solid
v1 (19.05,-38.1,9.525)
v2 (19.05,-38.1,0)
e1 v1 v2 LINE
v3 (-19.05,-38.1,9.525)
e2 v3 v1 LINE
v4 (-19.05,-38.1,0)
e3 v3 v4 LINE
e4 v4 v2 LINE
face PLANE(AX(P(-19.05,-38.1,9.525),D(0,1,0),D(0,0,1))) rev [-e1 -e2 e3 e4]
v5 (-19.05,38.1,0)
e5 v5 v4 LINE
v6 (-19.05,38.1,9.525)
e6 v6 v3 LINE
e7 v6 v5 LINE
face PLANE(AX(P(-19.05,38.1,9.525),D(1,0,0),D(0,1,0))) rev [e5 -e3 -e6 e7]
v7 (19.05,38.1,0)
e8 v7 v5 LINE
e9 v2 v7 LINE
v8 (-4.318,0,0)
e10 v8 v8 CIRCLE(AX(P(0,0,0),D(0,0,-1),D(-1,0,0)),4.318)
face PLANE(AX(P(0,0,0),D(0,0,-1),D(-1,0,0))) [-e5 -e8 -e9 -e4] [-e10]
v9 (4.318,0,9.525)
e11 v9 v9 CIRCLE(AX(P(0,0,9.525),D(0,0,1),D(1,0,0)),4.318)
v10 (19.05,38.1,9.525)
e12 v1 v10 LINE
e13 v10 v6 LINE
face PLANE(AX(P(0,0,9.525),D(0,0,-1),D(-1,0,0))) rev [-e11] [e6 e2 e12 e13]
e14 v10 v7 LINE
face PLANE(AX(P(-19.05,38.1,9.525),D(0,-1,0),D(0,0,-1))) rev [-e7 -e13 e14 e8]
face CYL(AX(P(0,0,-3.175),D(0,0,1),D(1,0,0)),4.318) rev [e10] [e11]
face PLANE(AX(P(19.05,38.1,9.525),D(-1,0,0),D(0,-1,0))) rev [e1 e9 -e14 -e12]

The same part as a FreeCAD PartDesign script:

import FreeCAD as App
import Part
import Sketcher
from FreeCAD import Vector
Q = App.Units.Quantity

doc = App.newDocument("Part")
body = doc.addObject("PartDesign::Body", "Body")

sketch1 = doc.addObject("Sketcher::SketchObject", "Sketch")
body.addObject(sketch1)
sketch1.AttachmentSupport = (doc.XY_Plane, [""])
sketch1.MapMode = "FlatFace"
sketch1.addGeometry([
    Part.LineSegment(Vector(-19.05, 38.1, 0), Vector(-19.05, -38.1, 0)),
    Part.LineSegment(Vector(-19.05, -38.1, 0), Vector(19.05, -38.1, 0)),
    Part.LineSegment(Vector(19.05, -38.1, 0), Vector(19.05, 38.1, 0)),
    Part.LineSegment(Vector(19.05, 38.1, 0), Vector(-19.05, 38.1, 0)),
], False)
sketch1.addConstraint([
    Sketcher.Constraint("Coincident", 0, 2, 1, 1),
    Sketcher.Constraint("Coincident", 1, 2, 2, 1),
    Sketcher.Constraint("Coincident", 2, 2, 3, 1),
    Sketcher.Constraint("Coincident", 3, 2, 0, 1),
    Sketcher.Constraint("Vertical", 0),
    Sketcher.Constraint("Horizontal", 1),
    Sketcher.Constraint("Vertical", 2),
    Sketcher.Constraint("Horizontal", 3),
    Sketcher.Constraint("Symmetric", 0, 2, 2, 2, -1, 1),
    Sketcher.Constraint("DistanceY", 0, 2, 0, 1, Q("3 in")),
    Sketcher.Constraint("DistanceX", 1, 1, 1, 2, Q("1.5 in")),
])
pad1 = doc.addObject("PartDesign::Pad", "Pad")
body.addObject(pad1)
pad1.Profile = sketch1
pad1.Length = Q("0.375 in")

sketch2 = doc.addObject("Sketcher::SketchObject", "Sketch001")
body.addObject(sketch2)
sketch2.AttachmentSupport = (doc.XY_Plane, [""])
sketch2.MapMode = "FlatFace"
sketch2.AttachmentOffset = App.Placement(Vector(0, 0, 0.375 * 25.4), App.Rotation())
sketch2.addGeometry([
    Part.LineSegment(Vector(-28.623, 47.673, 0), Vector(-28.623, -47.673, 0)),
    Part.LineSegment(Vector(-28.623, -47.673, 0), Vector(28.623, -47.673, 0)),
    Part.LineSegment(Vector(28.623, -47.673, 0), Vector(28.623, 47.673, 0)),
    Part.LineSegment(Vector(28.623, 47.673, 0), Vector(-28.623, 47.673, 0)),
    Part.LineSegment(Vector(19.05, -38.1, 0), Vector(-19.05, -38.1, 0)),
    Part.LineSegment(Vector(-19.05, -38.1, 0), Vector(-19.05, 38.1, 0)),
    Part.LineSegment(Vector(-19.05, 38.1, 0), Vector(19.05, 38.1, 0)),
    Part.LineSegment(Vector(19.05, 38.1, 0), Vector(19.05, -38.1, 0)),
    Part.Circle(Vector(0, 0, 0), Vector(0, 0, 1), 4.318),
], False)
sketch2.addConstraint([
    Sketcher.Constraint("Coincident", 0, 2, 1, 1),
    Sketcher.Constraint("Coincident", 1, 2, 2, 1),
    Sketcher.Constraint("Coincident", 2, 2, 3, 1),
    Sketcher.Constraint("Coincident", 3, 2, 0, 1),
    Sketcher.Constraint("Coincident", 4, 2, 5, 1),
    Sketcher.Constraint("Coincident", 5, 2, 6, 1),
    Sketcher.Constraint("Coincident", 6, 2, 7, 1),
    Sketcher.Constraint("Coincident", 7, 2, 4, 1),
    Sketcher.Constraint("Vertical", 0),
    Sketcher.Constraint("Horizontal", 1),
    Sketcher.Constraint("Vertical", 2),
    Sketcher.Constraint("Horizontal", 3),
    Sketcher.Constraint("Horizontal", 4),
    Sketcher.Constraint("Vertical", 5),
    Sketcher.Constraint("Horizontal", 6),
    Sketcher.Constraint("Vertical", 7),
    Sketcher.Constraint("Coincident", 8, 3, -1, 1),
    Sketcher.Constraint("Symmetric", 0, 2, 2, 2, -1, 1),
    Sketcher.Constraint("Symmetric", 4, 2, 6, 2, -1, 1),
    Sketcher.Constraint("Diameter", 8, Q("0.34 in")),
    Sketcher.Constraint("DistanceY", 5, 1, 5, 2, Q("3 in")),
    Sketcher.Constraint("DistanceX", 4, 2, 4, 1, Q("1.5 in")),
    Sketcher.Constraint("DistanceX", 1, 1, 1, 2, Q("57.246 mm")),
    Sketcher.Constraint("DistanceY", 0, 2, 0, 1, Q("95.346 mm")),
])
pocket1 = doc.addObject("PartDesign::Pocket", "Pocket")
body.addObject(pocket1)
pocket1.Profile = sketch2
pocket1.Length = Q("0.5 in")

doc.recompute()
